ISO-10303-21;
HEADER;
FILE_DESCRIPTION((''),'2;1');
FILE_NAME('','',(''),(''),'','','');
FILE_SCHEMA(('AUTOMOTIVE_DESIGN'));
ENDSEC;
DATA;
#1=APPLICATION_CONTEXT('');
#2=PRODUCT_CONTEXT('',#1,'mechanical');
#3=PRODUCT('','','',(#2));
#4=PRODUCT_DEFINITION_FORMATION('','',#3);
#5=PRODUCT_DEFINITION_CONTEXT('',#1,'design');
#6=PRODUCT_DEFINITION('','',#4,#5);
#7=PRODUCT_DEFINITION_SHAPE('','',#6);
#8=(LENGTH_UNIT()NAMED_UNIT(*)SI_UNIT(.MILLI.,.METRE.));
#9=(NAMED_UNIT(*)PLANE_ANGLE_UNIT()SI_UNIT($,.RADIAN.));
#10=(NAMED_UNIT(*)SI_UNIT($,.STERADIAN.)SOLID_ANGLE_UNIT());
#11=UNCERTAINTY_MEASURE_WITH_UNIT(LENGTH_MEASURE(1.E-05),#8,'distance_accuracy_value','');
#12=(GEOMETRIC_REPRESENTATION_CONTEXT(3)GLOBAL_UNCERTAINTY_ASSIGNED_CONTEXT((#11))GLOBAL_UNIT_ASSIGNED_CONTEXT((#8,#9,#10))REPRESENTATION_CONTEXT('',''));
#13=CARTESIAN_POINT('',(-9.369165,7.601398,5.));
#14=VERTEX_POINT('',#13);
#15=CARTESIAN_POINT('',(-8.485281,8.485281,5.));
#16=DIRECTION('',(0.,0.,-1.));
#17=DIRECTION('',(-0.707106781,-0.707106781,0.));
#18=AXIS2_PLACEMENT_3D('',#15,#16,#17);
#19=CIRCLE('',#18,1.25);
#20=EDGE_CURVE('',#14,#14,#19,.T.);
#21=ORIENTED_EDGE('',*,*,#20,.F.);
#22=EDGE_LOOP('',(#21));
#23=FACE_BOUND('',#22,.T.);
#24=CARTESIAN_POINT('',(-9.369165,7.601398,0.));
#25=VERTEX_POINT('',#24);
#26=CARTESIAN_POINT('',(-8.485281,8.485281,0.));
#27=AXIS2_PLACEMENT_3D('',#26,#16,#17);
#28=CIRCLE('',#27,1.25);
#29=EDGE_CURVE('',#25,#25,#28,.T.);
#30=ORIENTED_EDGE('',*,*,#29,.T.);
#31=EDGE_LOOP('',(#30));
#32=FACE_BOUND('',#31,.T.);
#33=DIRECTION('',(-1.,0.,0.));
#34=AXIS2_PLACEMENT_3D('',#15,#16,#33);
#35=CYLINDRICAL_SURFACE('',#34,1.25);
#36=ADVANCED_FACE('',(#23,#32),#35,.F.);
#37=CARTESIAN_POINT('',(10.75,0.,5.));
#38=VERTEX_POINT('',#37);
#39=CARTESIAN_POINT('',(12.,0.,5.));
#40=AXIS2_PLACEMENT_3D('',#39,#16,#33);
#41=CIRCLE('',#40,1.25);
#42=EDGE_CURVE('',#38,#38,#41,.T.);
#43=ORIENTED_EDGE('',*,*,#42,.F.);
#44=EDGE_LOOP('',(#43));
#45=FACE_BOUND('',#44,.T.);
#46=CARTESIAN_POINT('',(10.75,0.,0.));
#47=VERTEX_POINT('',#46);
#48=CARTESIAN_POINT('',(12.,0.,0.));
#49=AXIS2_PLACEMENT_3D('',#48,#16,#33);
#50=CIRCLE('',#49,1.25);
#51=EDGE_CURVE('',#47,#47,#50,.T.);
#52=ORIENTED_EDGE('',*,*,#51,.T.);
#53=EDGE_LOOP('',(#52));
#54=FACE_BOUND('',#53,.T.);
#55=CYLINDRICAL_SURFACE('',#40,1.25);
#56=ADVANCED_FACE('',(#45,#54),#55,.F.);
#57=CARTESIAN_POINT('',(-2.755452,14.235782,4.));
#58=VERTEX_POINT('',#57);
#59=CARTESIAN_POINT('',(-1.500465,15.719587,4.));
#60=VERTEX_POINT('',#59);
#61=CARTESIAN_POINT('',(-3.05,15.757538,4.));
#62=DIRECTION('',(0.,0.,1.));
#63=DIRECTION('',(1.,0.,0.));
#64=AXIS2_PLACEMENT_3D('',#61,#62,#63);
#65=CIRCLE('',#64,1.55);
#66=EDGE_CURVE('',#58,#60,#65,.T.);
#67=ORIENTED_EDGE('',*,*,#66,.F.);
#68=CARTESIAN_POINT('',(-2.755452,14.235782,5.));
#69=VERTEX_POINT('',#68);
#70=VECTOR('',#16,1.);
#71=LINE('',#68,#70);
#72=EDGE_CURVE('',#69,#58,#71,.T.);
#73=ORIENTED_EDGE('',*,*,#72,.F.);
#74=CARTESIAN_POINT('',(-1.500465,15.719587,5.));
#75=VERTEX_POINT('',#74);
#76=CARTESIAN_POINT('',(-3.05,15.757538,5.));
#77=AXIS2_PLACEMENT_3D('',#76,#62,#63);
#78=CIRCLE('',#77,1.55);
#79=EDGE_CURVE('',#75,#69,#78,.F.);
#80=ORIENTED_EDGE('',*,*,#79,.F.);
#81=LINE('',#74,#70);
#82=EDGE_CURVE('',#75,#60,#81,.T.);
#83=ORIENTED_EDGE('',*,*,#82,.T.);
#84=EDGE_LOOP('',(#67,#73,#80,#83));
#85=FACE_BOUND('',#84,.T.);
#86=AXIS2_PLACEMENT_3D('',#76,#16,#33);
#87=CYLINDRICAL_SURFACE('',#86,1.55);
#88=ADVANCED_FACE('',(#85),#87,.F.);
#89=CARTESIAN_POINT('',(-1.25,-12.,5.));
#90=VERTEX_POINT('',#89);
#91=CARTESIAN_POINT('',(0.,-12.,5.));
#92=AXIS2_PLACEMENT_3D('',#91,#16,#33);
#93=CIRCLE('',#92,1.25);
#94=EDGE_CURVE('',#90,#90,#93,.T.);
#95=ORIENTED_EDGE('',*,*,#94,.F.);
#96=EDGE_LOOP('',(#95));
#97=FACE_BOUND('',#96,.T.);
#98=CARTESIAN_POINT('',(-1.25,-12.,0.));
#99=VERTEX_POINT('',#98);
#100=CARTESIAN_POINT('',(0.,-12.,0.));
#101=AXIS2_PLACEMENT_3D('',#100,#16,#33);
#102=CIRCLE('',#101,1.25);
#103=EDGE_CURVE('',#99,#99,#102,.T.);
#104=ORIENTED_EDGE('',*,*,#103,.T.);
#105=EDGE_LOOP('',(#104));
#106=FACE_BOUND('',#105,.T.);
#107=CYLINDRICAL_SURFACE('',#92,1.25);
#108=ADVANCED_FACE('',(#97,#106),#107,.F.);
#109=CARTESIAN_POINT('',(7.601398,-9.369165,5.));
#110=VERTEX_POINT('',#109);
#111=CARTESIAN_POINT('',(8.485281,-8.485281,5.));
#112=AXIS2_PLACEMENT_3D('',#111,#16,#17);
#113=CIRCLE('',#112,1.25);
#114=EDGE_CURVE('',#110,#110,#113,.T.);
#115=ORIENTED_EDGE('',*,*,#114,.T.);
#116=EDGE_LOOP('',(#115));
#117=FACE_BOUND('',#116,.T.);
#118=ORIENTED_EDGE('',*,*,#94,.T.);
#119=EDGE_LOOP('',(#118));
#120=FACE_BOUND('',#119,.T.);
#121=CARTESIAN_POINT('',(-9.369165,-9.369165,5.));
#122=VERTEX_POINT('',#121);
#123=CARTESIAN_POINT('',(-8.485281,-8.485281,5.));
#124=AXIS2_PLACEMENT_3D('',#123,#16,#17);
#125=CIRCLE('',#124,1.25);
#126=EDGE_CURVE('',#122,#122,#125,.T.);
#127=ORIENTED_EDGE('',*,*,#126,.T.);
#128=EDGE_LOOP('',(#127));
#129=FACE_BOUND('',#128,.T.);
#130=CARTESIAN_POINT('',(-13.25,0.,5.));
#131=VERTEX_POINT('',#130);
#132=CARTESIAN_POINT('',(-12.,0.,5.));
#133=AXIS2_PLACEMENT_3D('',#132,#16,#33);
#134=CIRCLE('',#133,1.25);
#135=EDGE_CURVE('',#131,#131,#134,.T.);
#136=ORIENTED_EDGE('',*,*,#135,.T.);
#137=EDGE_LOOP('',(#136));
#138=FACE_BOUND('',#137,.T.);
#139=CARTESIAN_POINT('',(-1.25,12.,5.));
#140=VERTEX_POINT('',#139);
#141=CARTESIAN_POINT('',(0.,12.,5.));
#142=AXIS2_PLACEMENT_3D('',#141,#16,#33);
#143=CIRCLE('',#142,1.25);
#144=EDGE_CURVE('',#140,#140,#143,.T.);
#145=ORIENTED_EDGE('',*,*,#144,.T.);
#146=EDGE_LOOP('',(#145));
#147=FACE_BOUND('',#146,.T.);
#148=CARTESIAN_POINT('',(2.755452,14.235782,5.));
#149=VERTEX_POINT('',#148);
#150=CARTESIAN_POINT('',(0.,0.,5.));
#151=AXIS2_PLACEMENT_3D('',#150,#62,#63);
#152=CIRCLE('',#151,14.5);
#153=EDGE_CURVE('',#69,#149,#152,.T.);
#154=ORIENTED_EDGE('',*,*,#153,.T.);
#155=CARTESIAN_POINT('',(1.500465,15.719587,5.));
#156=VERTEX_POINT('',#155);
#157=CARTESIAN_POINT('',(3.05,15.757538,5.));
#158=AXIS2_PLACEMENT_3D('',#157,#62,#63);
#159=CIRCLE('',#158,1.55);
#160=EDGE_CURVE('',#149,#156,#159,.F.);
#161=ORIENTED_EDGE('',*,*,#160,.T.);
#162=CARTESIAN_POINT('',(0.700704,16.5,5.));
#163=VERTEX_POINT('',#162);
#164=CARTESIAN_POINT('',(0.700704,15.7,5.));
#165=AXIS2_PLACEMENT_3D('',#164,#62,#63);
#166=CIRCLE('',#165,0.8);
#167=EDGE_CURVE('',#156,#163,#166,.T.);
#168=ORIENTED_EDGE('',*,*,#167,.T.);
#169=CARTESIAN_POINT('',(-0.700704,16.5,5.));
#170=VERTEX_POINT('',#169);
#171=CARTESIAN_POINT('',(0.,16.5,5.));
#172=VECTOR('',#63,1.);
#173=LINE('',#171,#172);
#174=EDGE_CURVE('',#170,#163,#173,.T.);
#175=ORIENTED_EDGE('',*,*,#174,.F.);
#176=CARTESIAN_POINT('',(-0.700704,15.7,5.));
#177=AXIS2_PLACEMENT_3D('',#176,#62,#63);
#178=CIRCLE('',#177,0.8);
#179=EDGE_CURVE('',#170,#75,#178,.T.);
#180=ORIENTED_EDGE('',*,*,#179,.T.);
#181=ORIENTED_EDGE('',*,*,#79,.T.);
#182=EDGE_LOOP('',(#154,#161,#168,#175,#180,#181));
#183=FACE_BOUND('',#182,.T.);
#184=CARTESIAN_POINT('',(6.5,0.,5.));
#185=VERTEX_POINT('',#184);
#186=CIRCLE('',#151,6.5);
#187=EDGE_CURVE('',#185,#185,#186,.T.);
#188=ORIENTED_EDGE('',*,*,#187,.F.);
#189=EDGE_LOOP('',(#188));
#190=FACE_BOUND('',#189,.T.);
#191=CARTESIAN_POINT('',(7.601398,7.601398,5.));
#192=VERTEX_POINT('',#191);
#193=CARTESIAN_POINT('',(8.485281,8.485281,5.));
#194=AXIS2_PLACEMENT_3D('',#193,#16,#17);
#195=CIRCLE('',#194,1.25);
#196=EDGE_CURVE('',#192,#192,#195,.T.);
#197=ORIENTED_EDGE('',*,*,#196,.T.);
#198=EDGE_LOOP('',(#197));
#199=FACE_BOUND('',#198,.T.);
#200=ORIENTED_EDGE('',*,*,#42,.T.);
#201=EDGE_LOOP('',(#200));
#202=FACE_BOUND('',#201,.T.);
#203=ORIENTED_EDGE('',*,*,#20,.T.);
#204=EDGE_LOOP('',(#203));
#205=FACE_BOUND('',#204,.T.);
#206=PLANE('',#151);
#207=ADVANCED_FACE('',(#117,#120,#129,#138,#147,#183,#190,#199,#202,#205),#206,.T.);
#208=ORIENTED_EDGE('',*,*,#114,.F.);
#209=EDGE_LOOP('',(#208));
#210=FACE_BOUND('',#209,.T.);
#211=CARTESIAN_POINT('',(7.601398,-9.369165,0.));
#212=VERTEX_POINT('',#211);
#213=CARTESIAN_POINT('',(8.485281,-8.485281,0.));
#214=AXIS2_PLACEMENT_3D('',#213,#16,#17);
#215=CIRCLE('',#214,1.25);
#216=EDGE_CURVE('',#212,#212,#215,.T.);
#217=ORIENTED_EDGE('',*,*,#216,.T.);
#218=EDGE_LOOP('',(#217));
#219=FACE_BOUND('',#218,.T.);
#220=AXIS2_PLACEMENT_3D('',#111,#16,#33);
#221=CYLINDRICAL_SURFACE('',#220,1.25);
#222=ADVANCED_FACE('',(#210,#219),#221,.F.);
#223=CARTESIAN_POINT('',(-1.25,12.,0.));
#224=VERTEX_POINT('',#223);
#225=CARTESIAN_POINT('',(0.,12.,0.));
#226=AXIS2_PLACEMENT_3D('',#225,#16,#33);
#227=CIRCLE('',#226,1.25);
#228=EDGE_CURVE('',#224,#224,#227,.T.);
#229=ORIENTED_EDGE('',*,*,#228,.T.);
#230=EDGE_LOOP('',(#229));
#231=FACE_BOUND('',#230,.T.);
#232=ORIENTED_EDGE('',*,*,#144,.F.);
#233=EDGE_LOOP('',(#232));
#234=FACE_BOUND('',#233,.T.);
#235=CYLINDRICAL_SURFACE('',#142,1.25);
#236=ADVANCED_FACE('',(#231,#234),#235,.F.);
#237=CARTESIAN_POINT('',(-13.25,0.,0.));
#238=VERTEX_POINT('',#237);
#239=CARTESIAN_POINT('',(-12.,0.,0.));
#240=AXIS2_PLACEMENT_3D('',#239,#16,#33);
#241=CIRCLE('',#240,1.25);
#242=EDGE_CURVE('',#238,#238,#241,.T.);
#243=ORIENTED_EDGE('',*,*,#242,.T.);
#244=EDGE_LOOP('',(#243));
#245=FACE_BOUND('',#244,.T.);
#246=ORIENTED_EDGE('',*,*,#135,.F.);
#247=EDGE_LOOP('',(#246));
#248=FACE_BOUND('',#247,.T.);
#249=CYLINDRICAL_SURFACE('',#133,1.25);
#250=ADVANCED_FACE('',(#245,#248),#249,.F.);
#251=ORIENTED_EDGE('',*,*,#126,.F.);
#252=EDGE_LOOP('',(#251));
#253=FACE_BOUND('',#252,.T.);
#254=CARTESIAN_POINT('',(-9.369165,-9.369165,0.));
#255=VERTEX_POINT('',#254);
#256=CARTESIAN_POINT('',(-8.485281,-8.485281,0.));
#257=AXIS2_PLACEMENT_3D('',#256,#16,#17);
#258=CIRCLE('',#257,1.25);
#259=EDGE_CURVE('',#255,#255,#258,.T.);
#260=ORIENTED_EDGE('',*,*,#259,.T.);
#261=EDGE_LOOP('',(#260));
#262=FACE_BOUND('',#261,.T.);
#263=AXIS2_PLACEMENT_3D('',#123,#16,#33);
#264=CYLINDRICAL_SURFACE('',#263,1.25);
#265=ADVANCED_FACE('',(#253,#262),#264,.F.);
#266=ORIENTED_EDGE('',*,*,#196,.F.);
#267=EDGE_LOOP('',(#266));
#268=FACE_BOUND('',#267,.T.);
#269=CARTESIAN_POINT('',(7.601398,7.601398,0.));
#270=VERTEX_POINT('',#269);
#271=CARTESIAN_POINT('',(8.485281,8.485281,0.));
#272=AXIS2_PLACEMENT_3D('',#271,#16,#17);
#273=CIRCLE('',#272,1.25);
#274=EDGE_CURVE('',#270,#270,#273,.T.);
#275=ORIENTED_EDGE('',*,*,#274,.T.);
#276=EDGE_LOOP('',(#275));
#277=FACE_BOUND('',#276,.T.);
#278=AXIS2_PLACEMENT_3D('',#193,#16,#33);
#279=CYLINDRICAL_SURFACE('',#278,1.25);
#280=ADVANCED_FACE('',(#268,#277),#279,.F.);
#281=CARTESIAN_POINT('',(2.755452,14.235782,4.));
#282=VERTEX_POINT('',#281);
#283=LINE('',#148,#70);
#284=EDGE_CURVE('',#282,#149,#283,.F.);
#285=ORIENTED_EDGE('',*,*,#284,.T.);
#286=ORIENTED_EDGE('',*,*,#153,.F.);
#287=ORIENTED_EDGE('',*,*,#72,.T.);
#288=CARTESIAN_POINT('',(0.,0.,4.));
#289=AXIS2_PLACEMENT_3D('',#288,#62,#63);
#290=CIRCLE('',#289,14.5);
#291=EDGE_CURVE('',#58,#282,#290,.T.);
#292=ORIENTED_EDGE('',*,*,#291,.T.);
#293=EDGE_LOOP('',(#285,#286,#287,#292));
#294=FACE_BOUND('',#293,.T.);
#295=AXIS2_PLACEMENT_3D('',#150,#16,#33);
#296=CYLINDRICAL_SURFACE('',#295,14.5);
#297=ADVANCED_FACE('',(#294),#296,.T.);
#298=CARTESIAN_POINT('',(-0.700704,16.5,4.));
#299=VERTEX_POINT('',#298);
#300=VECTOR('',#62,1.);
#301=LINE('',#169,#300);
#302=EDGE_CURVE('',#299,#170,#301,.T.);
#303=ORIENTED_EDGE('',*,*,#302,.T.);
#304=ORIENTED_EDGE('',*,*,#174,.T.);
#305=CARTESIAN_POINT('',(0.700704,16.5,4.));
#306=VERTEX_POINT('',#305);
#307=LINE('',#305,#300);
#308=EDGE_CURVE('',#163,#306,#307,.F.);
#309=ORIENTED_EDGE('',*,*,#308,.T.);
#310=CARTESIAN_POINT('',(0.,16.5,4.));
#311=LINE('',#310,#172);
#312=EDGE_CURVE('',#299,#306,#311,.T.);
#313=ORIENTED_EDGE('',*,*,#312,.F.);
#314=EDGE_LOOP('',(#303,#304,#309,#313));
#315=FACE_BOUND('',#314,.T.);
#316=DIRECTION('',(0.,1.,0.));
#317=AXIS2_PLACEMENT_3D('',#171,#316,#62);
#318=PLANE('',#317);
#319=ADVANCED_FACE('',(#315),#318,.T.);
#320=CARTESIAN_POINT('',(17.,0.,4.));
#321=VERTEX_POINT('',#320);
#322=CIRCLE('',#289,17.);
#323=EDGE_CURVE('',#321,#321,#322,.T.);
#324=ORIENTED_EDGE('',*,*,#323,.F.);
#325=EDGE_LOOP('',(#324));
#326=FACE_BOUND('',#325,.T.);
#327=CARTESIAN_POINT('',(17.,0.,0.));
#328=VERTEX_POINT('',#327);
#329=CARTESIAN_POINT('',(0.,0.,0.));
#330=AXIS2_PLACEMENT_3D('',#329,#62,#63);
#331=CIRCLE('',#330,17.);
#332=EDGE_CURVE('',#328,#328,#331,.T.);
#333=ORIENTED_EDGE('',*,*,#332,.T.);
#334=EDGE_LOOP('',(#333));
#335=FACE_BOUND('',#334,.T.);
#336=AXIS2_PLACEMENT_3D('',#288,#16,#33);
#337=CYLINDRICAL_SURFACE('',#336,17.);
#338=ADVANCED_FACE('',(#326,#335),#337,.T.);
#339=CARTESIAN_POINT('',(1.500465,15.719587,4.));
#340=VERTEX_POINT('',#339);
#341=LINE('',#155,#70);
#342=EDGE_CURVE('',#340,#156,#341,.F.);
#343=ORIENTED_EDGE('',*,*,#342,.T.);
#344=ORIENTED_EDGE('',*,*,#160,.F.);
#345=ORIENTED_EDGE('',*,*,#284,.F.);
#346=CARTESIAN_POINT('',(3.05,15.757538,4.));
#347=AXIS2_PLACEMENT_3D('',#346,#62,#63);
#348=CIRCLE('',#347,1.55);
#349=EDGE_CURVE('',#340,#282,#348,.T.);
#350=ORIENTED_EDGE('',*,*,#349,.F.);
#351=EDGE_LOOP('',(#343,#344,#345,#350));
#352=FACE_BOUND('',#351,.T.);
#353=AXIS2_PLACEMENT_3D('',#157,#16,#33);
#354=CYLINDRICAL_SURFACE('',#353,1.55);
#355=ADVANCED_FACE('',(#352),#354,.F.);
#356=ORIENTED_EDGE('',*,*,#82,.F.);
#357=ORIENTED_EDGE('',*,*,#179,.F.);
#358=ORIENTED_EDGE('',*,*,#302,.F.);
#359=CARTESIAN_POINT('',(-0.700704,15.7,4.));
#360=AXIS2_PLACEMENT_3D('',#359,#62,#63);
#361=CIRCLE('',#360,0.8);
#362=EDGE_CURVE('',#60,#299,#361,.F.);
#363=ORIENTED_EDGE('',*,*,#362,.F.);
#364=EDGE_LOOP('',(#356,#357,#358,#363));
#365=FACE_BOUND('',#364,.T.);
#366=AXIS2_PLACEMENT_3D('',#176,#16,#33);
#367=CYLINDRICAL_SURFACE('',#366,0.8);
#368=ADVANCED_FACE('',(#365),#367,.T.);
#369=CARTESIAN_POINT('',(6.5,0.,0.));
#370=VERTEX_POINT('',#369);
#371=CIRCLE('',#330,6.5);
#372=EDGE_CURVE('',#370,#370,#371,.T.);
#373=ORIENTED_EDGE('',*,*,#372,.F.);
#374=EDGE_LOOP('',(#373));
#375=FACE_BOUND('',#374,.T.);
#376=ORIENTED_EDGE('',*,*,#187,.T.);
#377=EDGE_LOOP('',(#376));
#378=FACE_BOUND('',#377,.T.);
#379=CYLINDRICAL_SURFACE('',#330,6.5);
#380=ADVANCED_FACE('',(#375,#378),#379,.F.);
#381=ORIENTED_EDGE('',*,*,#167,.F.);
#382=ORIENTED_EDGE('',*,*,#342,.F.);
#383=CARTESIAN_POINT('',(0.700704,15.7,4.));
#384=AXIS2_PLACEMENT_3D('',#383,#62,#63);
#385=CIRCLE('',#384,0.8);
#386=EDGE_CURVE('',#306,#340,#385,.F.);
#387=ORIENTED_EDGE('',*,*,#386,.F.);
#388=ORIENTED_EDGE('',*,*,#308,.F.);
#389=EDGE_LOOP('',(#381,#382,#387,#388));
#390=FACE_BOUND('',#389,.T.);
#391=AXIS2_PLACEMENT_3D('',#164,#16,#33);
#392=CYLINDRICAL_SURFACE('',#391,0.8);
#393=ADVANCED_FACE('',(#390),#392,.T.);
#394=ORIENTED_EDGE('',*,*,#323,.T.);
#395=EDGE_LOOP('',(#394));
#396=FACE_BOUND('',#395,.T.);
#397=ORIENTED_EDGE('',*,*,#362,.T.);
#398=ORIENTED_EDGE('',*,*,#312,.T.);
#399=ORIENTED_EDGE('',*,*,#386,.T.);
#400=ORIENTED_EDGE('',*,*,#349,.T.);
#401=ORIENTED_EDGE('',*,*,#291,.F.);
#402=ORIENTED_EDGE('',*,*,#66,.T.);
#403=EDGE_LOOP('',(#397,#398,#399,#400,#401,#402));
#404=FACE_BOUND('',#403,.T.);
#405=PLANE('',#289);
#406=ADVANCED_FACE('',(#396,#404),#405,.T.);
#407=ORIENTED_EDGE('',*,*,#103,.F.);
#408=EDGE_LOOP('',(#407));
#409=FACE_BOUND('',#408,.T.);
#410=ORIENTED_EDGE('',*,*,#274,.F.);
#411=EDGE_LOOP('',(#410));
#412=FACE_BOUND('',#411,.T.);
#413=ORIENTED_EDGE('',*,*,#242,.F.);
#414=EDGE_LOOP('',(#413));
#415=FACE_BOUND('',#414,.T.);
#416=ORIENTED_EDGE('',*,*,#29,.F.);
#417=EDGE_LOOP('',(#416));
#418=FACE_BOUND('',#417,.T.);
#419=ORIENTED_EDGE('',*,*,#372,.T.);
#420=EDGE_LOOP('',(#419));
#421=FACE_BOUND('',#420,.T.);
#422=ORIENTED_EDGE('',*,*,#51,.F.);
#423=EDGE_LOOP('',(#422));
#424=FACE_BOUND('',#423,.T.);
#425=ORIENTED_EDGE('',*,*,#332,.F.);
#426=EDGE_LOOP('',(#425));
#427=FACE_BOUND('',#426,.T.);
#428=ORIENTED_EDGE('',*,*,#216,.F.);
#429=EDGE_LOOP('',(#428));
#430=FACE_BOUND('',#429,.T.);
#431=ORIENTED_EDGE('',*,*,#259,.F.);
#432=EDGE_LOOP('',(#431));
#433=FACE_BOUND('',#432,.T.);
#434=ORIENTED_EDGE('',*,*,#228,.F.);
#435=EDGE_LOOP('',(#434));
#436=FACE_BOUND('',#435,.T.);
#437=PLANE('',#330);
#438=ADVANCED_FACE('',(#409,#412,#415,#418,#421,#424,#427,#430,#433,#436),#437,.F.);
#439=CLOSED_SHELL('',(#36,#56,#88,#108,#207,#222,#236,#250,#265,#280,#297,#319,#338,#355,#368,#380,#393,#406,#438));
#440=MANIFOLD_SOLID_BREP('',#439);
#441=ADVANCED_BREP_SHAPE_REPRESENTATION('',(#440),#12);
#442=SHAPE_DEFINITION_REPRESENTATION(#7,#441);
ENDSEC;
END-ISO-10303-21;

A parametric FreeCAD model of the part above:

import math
import FreeCAD as App
import Part
import Sketcher
Q = App.Units.Quantity


def edges_at(feature, points):
    """Names of the edges that pass closest to the given points."""
    edges = feature.Shape.Edges
    near = lambda p: min(range(len(edges)), key=lambda i: edges[i].distToShape(Part.Vertex(*p))[0])
    return sorted({f"Edge{near(p) + 1}" for p in points})

doc = App.newDocument("Part")
body = doc.addObject("PartDesign::Body", "Body")

sketch1 = body.newObject("Sketcher::SketchObject", "Sketch")
sketch1.AttachmentSupport = (doc.getObject("XY_Plane"), [""])
sketch1.MapMode = "FlatFace"
sketch1.addGeometry(Part.Circle(App.Vector(0, 0, 0), App.Vector(0, 0, 1), 17), False)
sketch1.addConstraint([
    Sketcher.Constraint("Coincident", 0, 3, -1, 1),
    Sketcher.Constraint("Diameter", 0, Q("34 mm")),
])
pad1 = body.newObject("PartDesign::Pad", "Pad")
pad1.Profile = sketch1
pad1.Length = 4

sketch2 = body.newObject("Sketcher::SketchObject", "Sketch001")
sketch2.AttachmentSupport = (doc.getObject("XY_Plane"), [""])
sketch2.MapMode = "FlatFace"
sketch2.AttachmentOffset = App.Placement(App.Vector(0, 0, 4), App.Rotation())
sketch2.addGeometry([
    Part.ArcOfCircle(Part.Circle(App.Vector(0, 0, 0), App.Vector(0, 0, 1), 14.5), math.radians(96), math.radians(360)),
    Part.ArcOfCircle(Part.Circle(App.Vector(0, 0, 0), App.Vector(0, 0, 1), 14.5), math.radians(0), math.radians(84)),
    Part.LineSegment(App.Vector(1.5, 14.4, 0), App.Vector(1.5, 16.5, 0)),
    Part.LineSegment(App.Vector(1.5, 16.5, 0), App.Vector(-1.5, 16.5, 0)),
    Part.LineSegment(App.Vector(-1.5, 16.5, 0), App.Vector(-1.5, 14.4, 0)),
], False)
sketch2.addConstraint([
    Sketcher.Constraint("Tangent", 0, 2, 1, 1),
    Sketcher.Constraint("Coincident", 1, 2, 2, 1),
    Sketcher.Constraint("Coincident", 2, 2, 3, 1),
    Sketcher.Constraint("Coincident", 3, 2, 4, 1),
    Sketcher.Constraint("Coincident", 4, 2, 0, 1),
    Sketcher.Constraint("Vertical", 2),
    Sketcher.Constraint("Horizontal", 3),
    Sketcher.Constraint("Vertical", 4),
    Sketcher.Constraint("Coincident", 0, 3, -1, 1),
    Sketcher.Constraint("Equal", 0, 1),
    Sketcher.Constraint("PointOnObject", 0, 2, -1),
    Sketcher.Constraint("Horizontal", 1, 2, 4, 2),
    Sketcher.Constraint("Radius", 0, Q("14.5 mm")),
    Sketcher.Constraint("DistanceX", 3, 2, 3, 1, Q("3 mm")),
    Sketcher.Constraint("DistanceY", -1, 1, 2, 2, Q("16.5 mm")),
])
pad2 = body.newObject("PartDesign::Pad", "Pad001")
pad2.Profile = sketch2
pad2.Length = 1
doc.recompute()

fillet = body.newObject("PartDesign::Fillet", "Fillet")
fillet.Base = (pad2, edges_at(pad2, [(-1.5, 14.422, 4.5), (1.5, 14.422, 4.5)]))
fillet.Radius = 1.55
doc.recompute()

fillet2 = body.newObject("PartDesign::Fillet", "Fillet001")
fillet2.Base = (fillet, edges_at(fillet, [(1.5, 16.5, 4.5), (-1.5, 16.5, 4.5)]))
fillet2.Radius = 0.8

sketch3 = body.newObject("Sketcher::SketchObject", "Sketch002")
sketch3.AttachmentSupport = (doc.getObject("XY_Plane"), [""])
sketch3.MapMode = "FlatFace"
sketch3.AttachmentOffset = App.Placement(App.Vector(0, 0, 5), App.Rotation())
sketch3.addGeometry(Part.Circle(App.Vector(0, 0, 0), App.Vector(0, 0, 1), 6), False)
sketch3.addConstraint([
    Sketcher.Constraint("Coincident", 0, 3, -1, 1),
    Sketcher.Constraint("Diameter", 0, Q("13 mm")),
])
pocket1 = body.newObject("PartDesign::Pocket", "Pocket")
pocket1.Profile = sketch3
pocket1.Type = "ThroughAll"

sketch4 = body.newObject("Sketcher::SketchObject", "Sketch003")
sketch4.AttachmentSupport = (doc.getObject("XY_Plane"), [""])
sketch4.MapMode = "FlatFace"
sketch4.addGeometry([
    Part.Circle(App.Vector(0, 12, 0), App.Vector(0, 0, 1), 1.2),
    Part.Circle(App.Vector(-12, 0, 0), App.Vector(0, 0, 1), 1.2),
    Part.Circle(App.Vector(0, -12, 0), App.Vector(0, 0, 1), 1.2),
    Part.Circle(App.Vector(12, 0, 0), App.Vector(0, 0, 1), 1.2),
], False)
sketch4.addConstraint([
    Sketcher.Constraint("Equal", 0, 1),
    Sketcher.Constraint("Equal", 1, 2),
    Sketcher.Constraint("Equal", 2, 3),
    Sketcher.Constraint("Symmetric", 0, 3, 2, 3, -1, 1),
    Sketcher.Constraint("Symmetric", 1, 3, 3, 3, -1, 1),
    Sketcher.Constraint("PointOnObject", 0, 3, -2),
    Sketcher.Constraint("PointOnObject", 1, 3, -1),
    Sketcher.Constraint("Diameter", 0, Q("2.5 mm")),
    Sketcher.Constraint("DistanceY", -1, 1, 0, 3, Q("12 mm")),
    Sketcher.Constraint("DistanceX", 1, 3, -1, 1, Q("12 mm")),
])
pocket2 = body.newObject("PartDesign::Pocket", "Pocket001")
pocket2.Profile = sketch4
pocket2.Type = "ThroughAll"
pocket2.Reversed = True
doc.recompute()

polarpattern = body.newObject("PartDesign::PolarPattern", "PolarPattern")
polarpattern.Originals = [pocket2]
polarpattern.Axis = (doc.getObject("Z_Axis"), [""])
polarpattern.Angle = 45
polarpattern.Occurrences = 2
body.Tip = polarpattern

doc.recompute()
